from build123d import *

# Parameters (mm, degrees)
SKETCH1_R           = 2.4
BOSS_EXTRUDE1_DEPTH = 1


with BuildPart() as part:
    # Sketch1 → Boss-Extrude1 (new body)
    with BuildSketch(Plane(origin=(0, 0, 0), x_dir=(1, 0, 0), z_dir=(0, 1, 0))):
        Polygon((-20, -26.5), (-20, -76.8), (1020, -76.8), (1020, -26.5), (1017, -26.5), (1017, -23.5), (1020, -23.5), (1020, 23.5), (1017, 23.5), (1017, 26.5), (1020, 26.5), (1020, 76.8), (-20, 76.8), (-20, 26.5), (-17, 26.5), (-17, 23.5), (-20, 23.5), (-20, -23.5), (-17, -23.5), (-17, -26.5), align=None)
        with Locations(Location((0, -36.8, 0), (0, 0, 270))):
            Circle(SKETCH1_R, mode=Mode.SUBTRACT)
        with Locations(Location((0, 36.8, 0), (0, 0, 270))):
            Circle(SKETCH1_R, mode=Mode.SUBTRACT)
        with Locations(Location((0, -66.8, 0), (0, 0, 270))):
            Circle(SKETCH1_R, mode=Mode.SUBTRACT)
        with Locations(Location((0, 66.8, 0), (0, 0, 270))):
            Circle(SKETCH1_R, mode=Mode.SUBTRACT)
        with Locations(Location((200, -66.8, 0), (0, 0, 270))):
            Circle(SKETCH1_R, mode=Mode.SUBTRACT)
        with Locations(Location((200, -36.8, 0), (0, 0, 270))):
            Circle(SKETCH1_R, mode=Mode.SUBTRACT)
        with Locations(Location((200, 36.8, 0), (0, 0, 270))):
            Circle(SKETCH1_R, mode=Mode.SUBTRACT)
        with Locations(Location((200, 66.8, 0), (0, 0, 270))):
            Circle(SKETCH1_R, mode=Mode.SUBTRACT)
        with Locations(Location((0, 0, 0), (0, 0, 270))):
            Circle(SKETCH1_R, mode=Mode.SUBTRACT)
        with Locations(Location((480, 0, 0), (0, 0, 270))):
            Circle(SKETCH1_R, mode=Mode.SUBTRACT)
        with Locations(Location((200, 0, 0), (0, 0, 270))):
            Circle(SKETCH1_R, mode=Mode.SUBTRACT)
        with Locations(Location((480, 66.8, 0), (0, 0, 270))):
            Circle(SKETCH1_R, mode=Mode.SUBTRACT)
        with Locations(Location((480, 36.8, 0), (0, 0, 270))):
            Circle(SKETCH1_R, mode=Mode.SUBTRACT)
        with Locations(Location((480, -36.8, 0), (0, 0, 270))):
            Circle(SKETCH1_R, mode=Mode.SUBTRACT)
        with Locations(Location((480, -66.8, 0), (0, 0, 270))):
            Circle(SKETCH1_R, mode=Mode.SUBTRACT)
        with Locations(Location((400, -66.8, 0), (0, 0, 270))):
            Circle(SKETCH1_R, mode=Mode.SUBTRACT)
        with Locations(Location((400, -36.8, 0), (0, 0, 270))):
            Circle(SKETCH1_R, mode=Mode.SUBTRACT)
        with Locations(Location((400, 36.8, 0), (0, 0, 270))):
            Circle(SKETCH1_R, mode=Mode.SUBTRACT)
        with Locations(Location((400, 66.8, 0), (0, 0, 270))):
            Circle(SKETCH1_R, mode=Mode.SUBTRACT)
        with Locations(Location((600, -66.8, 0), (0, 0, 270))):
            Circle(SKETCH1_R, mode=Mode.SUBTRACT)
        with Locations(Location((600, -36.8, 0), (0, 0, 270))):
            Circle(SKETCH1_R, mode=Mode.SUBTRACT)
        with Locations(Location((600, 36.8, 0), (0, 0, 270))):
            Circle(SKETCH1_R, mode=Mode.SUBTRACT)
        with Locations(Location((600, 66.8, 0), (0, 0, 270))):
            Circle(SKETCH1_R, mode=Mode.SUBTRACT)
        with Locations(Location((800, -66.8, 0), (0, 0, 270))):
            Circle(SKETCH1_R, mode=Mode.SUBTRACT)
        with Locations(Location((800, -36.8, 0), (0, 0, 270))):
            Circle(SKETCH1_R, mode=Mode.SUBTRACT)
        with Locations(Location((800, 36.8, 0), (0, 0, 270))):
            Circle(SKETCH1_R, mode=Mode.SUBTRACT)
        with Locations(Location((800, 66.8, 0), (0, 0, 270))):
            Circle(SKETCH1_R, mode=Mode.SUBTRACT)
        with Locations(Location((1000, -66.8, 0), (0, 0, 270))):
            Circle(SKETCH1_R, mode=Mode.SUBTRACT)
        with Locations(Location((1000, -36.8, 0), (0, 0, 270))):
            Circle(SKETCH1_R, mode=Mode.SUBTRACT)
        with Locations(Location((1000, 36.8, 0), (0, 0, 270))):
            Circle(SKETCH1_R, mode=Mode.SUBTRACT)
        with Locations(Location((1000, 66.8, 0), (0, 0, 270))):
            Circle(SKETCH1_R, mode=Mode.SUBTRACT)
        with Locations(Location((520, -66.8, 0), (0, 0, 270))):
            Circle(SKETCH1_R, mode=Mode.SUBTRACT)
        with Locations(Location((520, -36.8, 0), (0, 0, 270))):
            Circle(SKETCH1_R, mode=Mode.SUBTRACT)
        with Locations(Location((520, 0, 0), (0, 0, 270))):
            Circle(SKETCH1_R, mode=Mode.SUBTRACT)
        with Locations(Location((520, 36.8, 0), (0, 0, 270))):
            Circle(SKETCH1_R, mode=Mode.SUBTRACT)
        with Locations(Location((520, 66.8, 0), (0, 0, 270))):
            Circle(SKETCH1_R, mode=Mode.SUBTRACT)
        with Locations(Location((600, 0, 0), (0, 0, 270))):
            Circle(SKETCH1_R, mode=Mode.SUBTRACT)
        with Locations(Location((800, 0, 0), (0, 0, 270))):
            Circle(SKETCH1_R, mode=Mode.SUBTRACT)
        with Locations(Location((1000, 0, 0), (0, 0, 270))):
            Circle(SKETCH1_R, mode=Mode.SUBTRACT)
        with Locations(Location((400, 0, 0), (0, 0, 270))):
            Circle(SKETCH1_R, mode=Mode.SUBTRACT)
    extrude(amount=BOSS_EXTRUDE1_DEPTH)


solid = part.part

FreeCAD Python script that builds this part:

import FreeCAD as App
import Part
import Sketcher
from FreeCAD import Vector

doc = App.newDocument("Part")
body = doc.addObject("PartDesign::Body", "Body")

# Sketch on XZ plane
sketch1 = body.newObject("Sketcher::SketchObject", "Sketch")
sketch1.AttachmentSupport = (doc.getObject("XZ_Plane"), [""])
sketch1.MapMode = "FlatFace"
sketch1.addGeometry([
    Part.LineSegment(Vector(-20, 26.5, 0), Vector(-20, 76.8, 0)),  # 0
    Part.LineSegment(Vector(-20, 76.8, 0), Vector(1020, 76.8, 0)),  # 1
    Part.LineSegment(Vector(1020, 76.8, 0), Vector(1020, 26.5, 0)),  # 2
    Part.LineSegment(Vector(1020, 26.5, 0), Vector(1017, 26.5, 0)),  # 3
    Part.LineSegment(Vector(1017, 26.5, 0), Vector(1017, 23.5, 0)),  # 4
    Part.LineSegment(Vector(1017, 23.5, 0), Vector(1020, 23.5, 0)),  # 5
    Part.LineSegment(Vector(1020, 23.5, 0), Vector(1020, -23.5, 0)),  # 6
    Part.LineSegment(Vector(1020, -23.5, 0), Vector(1017, -23.5, 0)),  # 7
    Part.LineSegment(Vector(1017, -23.5, 0), Vector(1017, -26.5, 0)),  # 8
    Part.LineSegment(Vector(1017, -26.5, 0), Vector(1020, -26.5, 0)),  # 9
    Part.LineSegment(Vector(1020, -26.5, 0), Vector(1020, -76.8, 0)),  # 10
    Part.LineSegment(Vector(1020, -76.8, 0), Vector(-20, -76.8, 0)),  # 11
    Part.LineSegment(Vector(-20, -76.8, 0), Vector(-20, -26.5, 0)),  # 12
    Part.LineSegment(Vector(-20, -26.5, 0), Vector(-17, -26.5, 0)),  # 13
    Part.LineSegment(Vector(-17, -26.5, 0), Vector(-17, -23.5, 0)),  # 14
    Part.LineSegment(Vector(-17, -23.5, 0), Vector(-20, -23.5, 0)),  # 15
    Part.LineSegment(Vector(-20, -23.5, 0), Vector(-20, 23.5, 0)),  # 16
    Part.LineSegment(Vector(-20, 23.5, 0), Vector(-17, 23.5, 0)),  # 17
    Part.LineSegment(Vector(-17, 23.5, 0), Vector(-17, 26.5, 0)),  # 18
    Part.LineSegment(Vector(-17, 26.5, 0), Vector(-20, 26.5, 0)),  # 19
    Part.Circle(Vector(0, 66.8, 0), Vector(0, 0, 1), 2.4),  # 20
    Part.Circle(Vector(200, 66.8, 0), Vector(0, 0, 1), 2.4),  # 21
    Part.Circle(Vector(0, 36.8, 0), Vector(0, 0, 1), 2.4),  # 22
    Part.Circle(Vector(200, 36.8, 0), Vector(0, 0, 1), 2.4),  # 23
    Part.Circle(Vector(400, 66.8, 0), Vector(0, 0, 1), 2.4),  # 24
    Part.Circle(Vector(480, 66.8, 0), Vector(0, 0, 1), 2.4),  # 25
    Part.Circle(Vector(400, 36.8, 0), Vector(0, 0, 1), 2.4),  # 26
    Part.Circle(Vector(480, 36.8, 0), Vector(0, 0, 1), 2.4),  # 27
    Part.Circle(Vector(520, 66.8, 0), Vector(0, 0, 1), 2.4),  # 28
    Part.Circle(Vector(600, 66.8, 0), Vector(0, 0, 1), 2.4),  # 29
    Part.Circle(Vector(520, 36.8, 0), Vector(0, 0, 1), 2.4),  # 30
    Part.Circle(Vector(600, 36.8, 0), Vector(0, 0, 1), 2.4),  # 31
    Part.Circle(Vector(800, 66.8, 0), Vector(0, 0, 1), 2.4),  # 32
    Part.Circle(Vector(1000, 66.8, 0), Vector(0, 0, 1), 2.4),  # 33
    Part.Circle(Vector(800, 36.8, 0), Vector(0, 0, 1), 2.4),  # 34
    Part.Circle(Vector(1000, 36.8, 0), Vector(0, 0, 1), 2.4),  # 35
    Part.Circle(Vector(0, 0, 0), Vector(0, 0, 1), 2.4),  # 36
    Part.Circle(Vector(200, 0, 0), Vector(0, 0, 1), 2.4),  # 37
    Part.Circle(Vector(400, 0, 0), Vector(0, 0, 1), 2.4),  # 38
    Part.Circle(Vector(480, 0, 0), Vector(0, 0, 1), 2.4),  # 39
    Part.Circle(Vector(0, -36.8, 0), Vector(0, 0, 1), 2.4),  # 40
    Part.Circle(Vector(200, -36.8, 0), Vector(0, 0, 1), 2.4),  # 41
    Part.Circle(Vector(0, -66.8, 0), Vector(0, 0, 1), 2.4),  # 42
    Part.Circle(Vector(200, -66.8, 0), Vector(0, 0, 1), 2.4),  # 43
    Part.Circle(Vector(400, -36.8, 0), Vector(0, 0, 1), 2.4),  # 44
    Part.Circle(Vector(480, -36.8, 0), Vector(0, 0, 1), 2.4),  # 45
    Part.Circle(Vector(400, -66.8, 0), Vector(0, 0, 1), 2.4),  # 46
    Part.Circle(Vector(480, -66.8, 0), Vector(0, 0, 1), 2.4),  # 47
    Part.Circle(Vector(520, 0, 0), Vector(0, 0, 1), 2.4),  # 48
    Part.Circle(Vector(600, 0, 0), Vector(0, 0, 1), 2.4),  # 49
    Part.Circle(Vector(800, 0, 0), Vector(0, 0, 1), 2.4),  # 50
    Part.Circle(Vector(1000, 0, 0), Vector(0, 0, 1), 2.4),  # 51
    Part.Circle(Vector(520, -36.8, 0), Vector(0, 0, 1), 2.4),  # 52
    Part.Circle(Vector(600, -36.8, 0), Vector(0, 0, 1), 2.4),  # 53
    Part.Circle(Vector(520, -66.8, 0), Vector(0, 0, 1), 2.4),  # 54
    Part.Circle(Vector(600, -66.8, 0), Vector(0, 0, 1), 2.4),  # 55
    Part.Circle(Vector(800, -36.8, 0), Vector(0, 0, 1), 2.4),  # 56
    Part.Circle(Vector(1000, -36.8, 0), Vector(0, 0, 1), 2.4),  # 57
    Part.Circle(Vector(800, -66.8, 0), Vector(0, 0, 1), 2.4),  # 58
    Part.Circle(Vector(1000, -66.8, 0), Vector(0, 0, 1), 2.4),  # 59
], False)
sketch1.addConstraint([
    Sketcher.Constraint("Coincident", 0, 2, 1, 1),
    Sketcher.Constraint("Coincident", 1, 2, 2, 1),
    Sketcher.Constraint("Coincident", 2, 2, 3, 1),
    Sketcher.Constraint("Coincident", 3, 2, 4, 1),
    Sketcher.Constraint("Coincident", 4, 2, 5, 1),
    Sketcher.Constraint("Coincident", 5, 2, 6, 1),
    Sketcher.Constraint("Coincident", 6, 2, 7, 1),
    Sketcher.Constraint("Coincident", 7, 2, 8, 1),
    Sketcher.Constraint("Coincident", 8, 2, 9, 1),
    Sketcher.Constraint("Coincident", 9, 2, 10, 1),
    Sketcher.Constraint("Coincident", 10, 2, 11, 1),
    Sketcher.Constraint("Coincident", 11, 2, 12, 1),
    Sketcher.Constraint("Coincident", 12, 2, 13, 1),
    Sketcher.Constraint("Coincident", 13, 2, 14, 1),
    Sketcher.Constraint("Coincident", 14, 2, 15, 1),
    Sketcher.Constraint("Coincident", 15, 2, 16, 1),
    Sketcher.Constraint("Coincident", 16, 2, 17, 1),
    Sketcher.Constraint("Coincident", 17, 2, 18, 1),
    Sketcher.Constraint("Coincident", 18, 2, 19, 1),
    Sketcher.Constraint("Coincident", 19, 2, 0, 1),
    Sketcher.Constraint("Vertical", 0),
    Sketcher.Constraint("Horizontal", 1),
    Sketcher.Constraint("Vertical", 2),
    Sketcher.Constraint("Horizontal", 3),
    Sketcher.Constraint("Vertical", 4),
    Sketcher.Constraint("Horizontal", 5),
    Sketcher.Constraint("Vertical", 6),
    Sketcher.Constraint("Horizontal", 7),
    Sketcher.Constraint("Vertical", 8),
    Sketcher.Constraint("Horizontal", 9),
    Sketcher.Constraint("Vertical", 10),
    Sketcher.Constraint("Horizontal", 11),
    Sketcher.Constraint("Vertical", 12),
    Sketcher.Constraint("Horizontal", 13),
    Sketcher.Constraint("Vertical", 14),
    Sketcher.Constraint("Horizontal", 15),
    Sketcher.Constraint("Vertical", 16),
    Sketcher.Constraint("Horizontal", 17),
    Sketcher.Constraint("Vertical", 18),
    Sketcher.Constraint("Horizontal", 19),
    Sketcher.Constraint("Coincident", 36, 3, -1, 1),
    Sketcher.Constraint("Equal", 20, 21),
    Sketcher.Constraint("Equal", 21, 22),
    Sketcher.Constraint("Equal", 22, 23),
    Sketcher.Constraint("Equal", 23, 24),
    Sketcher.Constraint("Equal", 24, 25),
    Sketcher.Constraint("Equal", 25, 26),
    Sketcher.Constraint("Equal", 26, 27),
    Sketcher.Constraint("Equal", 27, 28),
    Sketcher.Constraint("Equal", 28, 29),
    Sketcher.Constraint("Equal", 29, 30),
    Sketcher.Constraint("Equal", 30, 31),
    Sketcher.Constraint("Equal", 31, 32),
    Sketcher.Constraint("Equal", 32, 33),
    Sketcher.Constraint("Equal", 33, 34),
    Sketcher.Constraint("Equal", 34, 35),
    Sketcher.Constraint("Equal", 35, 36),
    Sketcher.Constraint("Equal", 36, 37),
    Sketcher.Constraint("Equal", 37, 38),
    Sketcher.Constraint("Equal", 38, 39),
    Sketcher.Constraint("Equal", 39, 40),
    Sketcher.Constraint("Equal", 40, 41),
    Sketcher.Constraint("Equal", 41, 42),
    Sketcher.Constraint("Equal", 42, 43),
    Sketcher.Constraint("Equal", 43, 44),
    Sketcher.Constraint("Equal", 44, 45),
    Sketcher.Constraint("Equal", 45, 46),
    Sketcher.Constraint("Equal", 46, 47),
    Sketcher.Constraint("Equal", 47, 48),
    Sketcher.Constraint("Equal", 48, 49),
    Sketcher.Constraint("Equal", 49, 50),
    Sketcher.Constraint("Equal", 50, 51),
    Sketcher.Constraint("Equal", 51, 52),
    Sketcher.Constraint("Equal", 52, 53),
    Sketcher.Constraint("Equal", 53, 54),
    Sketcher.Constraint("Equal", 54, 55),
    Sketcher.Constraint("Equal", 55, 56),
    Sketcher.Constraint("Equal", 56, 57),
    Sketcher.Constraint("Equal", 57, 58),
    Sketcher.Constraint("Equal", 58, 59),
    Sketcher.Constraint("Symmetric", 22, 3, 40, 3, -1, 1),
    Sketcher.Constraint("Symmetric", 20, 3, 42, 3, -1, 1),
    Sketcher.Constraint("Symmetric", 23, 3, 41, 3, -1),
    Sketcher.Constraint("Symmetric", 21, 3, 43, 3, -1),
    Sketcher.Constraint("Symmetric", 26, 3, 44, 3, -1),
    Sketcher.Constraint("Symmetric", 27, 3, 45, 3, -1),
    Sketcher.Constraint("Symmetric", 24, 3, 46, 3, -1),
    Sketcher.Constraint("Symmetric", 25, 3, 47, 3, -1),
    Sketcher.Constraint("Symmetric", 30, 3, 52, 3, -1),
    Sketcher.Constraint("Symmetric", 31, 3, 53, 3, -1),
    Sketcher.Constraint("Symmetric", 28, 3, 54, 3, -1),
    Sketcher.Constraint("Symmetric", 29, 3, 55, 3, -1),
    Sketcher.Constraint("Symmetric", 34, 3, 56, 3, -1),
    Sketcher.Constraint("Symmetric", 35, 3, 57, 3, -1),
    Sketcher.Constraint("Symmetric", 32, 3, 58, 3, -1),
    Sketcher.Constraint("Symmetric", 33, 3, 59, 3, -1),
    Sketcher.Constraint("Symmetric", 4, 2, 7, 2, -1),
    Sketcher.Constraint("Symmetric", 2, 2, 9, 2, -1),
    Sketcher.Constraint("Symmetric", 0, 2, 11, 2, -1),
    Sketcher.Constraint("Symmetric", 14, 2, 17, 2, -1),
    Sketcher.Constraint("PointOnObject", 20, 3, -2),
    Sketcher.Constraint("PointOnObject", 22, 3, -2),
    Sketcher.Constraint("PointOnObject", 37, 3, -1),
    Sketcher.Constraint("PointOnObject", 38, 3, -1),
    Sketcher.Constraint("PointOnObject", 39, 3, -1),
    Sketcher.Constraint("PointOnObject", 48, 3, -1),
    Sketcher.Constraint("PointOnObject", 49, 3, -1),
    Sketcher.Constraint("PointOnObject", 50, 3, -1),
    Sketcher.Constraint("PointOnObject", 51, 3, -1),
    Sketcher.Constraint("Horizontal", 20, 3, 21, 3),
    Sketcher.Constraint("Horizontal", 22, 3, 23, 3),
    Sketcher.Constraint("Horizontal", 21, 3, 24, 3),
    Sketcher.Constraint("Horizontal", 24, 3, 25, 3),
    Sketcher.Constraint("Horizontal", 23, 3, 26, 3),
    Sketcher.Constraint("Horizontal", 26, 3, 27, 3),
    Sketcher.Constraint("Horizontal", 25, 3, 28, 3),
    Sketcher.Constraint("Horizontal", 28, 3, 29, 3),
    Sketcher.Constraint("Horizontal", 27, 3, 30, 3),
    Sketcher.Constraint("Horizontal", 30, 3, 31, 3),
    Sketcher.Constraint("Horizontal", 29, 3, 32, 3),
    Sketcher.Constraint("Horizontal", 32, 3, 33, 3),
    Sketcher.Constraint("Horizontal", 31, 3, 34, 3),
    Sketcher.Constraint("Horizontal", 34, 3, 35, 3),
    Sketcher.Constraint("Horizontal", 9, 2, 12, 2),
    Sketcher.Constraint("Horizontal", 7, 2, 14, 2),
    Sketcher.Constraint("Horizontal", 3, 2, 18, 2),
    Sketcher.Constraint("Vertical", 21, 3, 23, 3),
    Sketcher.Constraint("Vertical", 24, 3, 26, 3),
    Sketcher.Constraint("Vertical", 25, 3, 27, 3),
    Sketcher.Constraint("Vertical", 28, 3, 30, 3),
    Sketcher.Constraint("Vertical", 29, 3, 31, 3),
    Sketcher.Constraint("Vertical", 32, 3, 34, 3),
    Sketcher.Constraint("Vertical", 33, 3, 35, 3),
    Sketcher.Constraint("Vertical", 23, 3, 37, 3),
    Sketcher.Constraint("Vertical", 26, 3, 38, 3),
    Sketcher.Constraint("Vertical", 27, 3, 39, 3),
    Sketcher.Constraint("Vertical", 30, 3, 48, 3),
    Sketcher.Constraint("Vertical", 31, 3, 49, 3),
    Sketcher.Constraint("Vertical", 34, 3, 50, 3),
    Sketcher.Constraint("Vertical", 35, 3, 51, 3),
    Sketcher.Constraint("Vertical", 2, 2, 5, 2),
    Sketcher.Constraint("Vertical", 12, 2, 15, 2),
    Sketcher.Constraint("Equal", 9, 13),
    Sketcher.Constraint("Equal", 19, 4),
    Sketcher.Constraint("Diameter", 20, 4.8),
    Sketcher.Constraint("DistanceX", 1, 1, 1, 2, 1040.0),
    Sketcher.Constraint("DistanceX", 3, 2, 3, 1, 3.0),
    Sketcher.Constraint("DistanceY", 6, 2, 6, 1, 47.0),
    Sketcher.Constraint("DistanceY", 0, 1, 0, 2, 50.3),
    Sketcher.Constraint("DistanceX", -1, 1, 21, 3, 200.0),
    Sketcher.Constraint("DistanceX", -1, 1, 24, 3, 400.0),
    Sketcher.Constraint("DistanceX", -1, 1, 25, 3, 480.0),
    Sketcher.Constraint("DistanceX", -1, 1, 28, 3, 520.0),
    Sketcher.Constraint("DistanceX", -1, 1, 29, 3, 600.0),
    Sketcher.Constraint("DistanceX", -1, 1, 32, 3, 800.0),
    Sketcher.Constraint("DistanceX", -1, 1, 33, 3, 1000.0),
    Sketcher.Constraint("DistanceX", 0, 2, -1, 1, 20.0),
    Sketcher.Constraint("DistanceY", 22, 3, 20, 3, 30.0),
    Sketcher.Constraint("DistanceY", 20, 3, 0, 2, 10.0),
])
pad1 = body.newObject("PartDesign::Pad", "Pad")
pad1.Profile = sketch1
pad1.Length = 1
pad1.Reversed = True

doc.recompute()
